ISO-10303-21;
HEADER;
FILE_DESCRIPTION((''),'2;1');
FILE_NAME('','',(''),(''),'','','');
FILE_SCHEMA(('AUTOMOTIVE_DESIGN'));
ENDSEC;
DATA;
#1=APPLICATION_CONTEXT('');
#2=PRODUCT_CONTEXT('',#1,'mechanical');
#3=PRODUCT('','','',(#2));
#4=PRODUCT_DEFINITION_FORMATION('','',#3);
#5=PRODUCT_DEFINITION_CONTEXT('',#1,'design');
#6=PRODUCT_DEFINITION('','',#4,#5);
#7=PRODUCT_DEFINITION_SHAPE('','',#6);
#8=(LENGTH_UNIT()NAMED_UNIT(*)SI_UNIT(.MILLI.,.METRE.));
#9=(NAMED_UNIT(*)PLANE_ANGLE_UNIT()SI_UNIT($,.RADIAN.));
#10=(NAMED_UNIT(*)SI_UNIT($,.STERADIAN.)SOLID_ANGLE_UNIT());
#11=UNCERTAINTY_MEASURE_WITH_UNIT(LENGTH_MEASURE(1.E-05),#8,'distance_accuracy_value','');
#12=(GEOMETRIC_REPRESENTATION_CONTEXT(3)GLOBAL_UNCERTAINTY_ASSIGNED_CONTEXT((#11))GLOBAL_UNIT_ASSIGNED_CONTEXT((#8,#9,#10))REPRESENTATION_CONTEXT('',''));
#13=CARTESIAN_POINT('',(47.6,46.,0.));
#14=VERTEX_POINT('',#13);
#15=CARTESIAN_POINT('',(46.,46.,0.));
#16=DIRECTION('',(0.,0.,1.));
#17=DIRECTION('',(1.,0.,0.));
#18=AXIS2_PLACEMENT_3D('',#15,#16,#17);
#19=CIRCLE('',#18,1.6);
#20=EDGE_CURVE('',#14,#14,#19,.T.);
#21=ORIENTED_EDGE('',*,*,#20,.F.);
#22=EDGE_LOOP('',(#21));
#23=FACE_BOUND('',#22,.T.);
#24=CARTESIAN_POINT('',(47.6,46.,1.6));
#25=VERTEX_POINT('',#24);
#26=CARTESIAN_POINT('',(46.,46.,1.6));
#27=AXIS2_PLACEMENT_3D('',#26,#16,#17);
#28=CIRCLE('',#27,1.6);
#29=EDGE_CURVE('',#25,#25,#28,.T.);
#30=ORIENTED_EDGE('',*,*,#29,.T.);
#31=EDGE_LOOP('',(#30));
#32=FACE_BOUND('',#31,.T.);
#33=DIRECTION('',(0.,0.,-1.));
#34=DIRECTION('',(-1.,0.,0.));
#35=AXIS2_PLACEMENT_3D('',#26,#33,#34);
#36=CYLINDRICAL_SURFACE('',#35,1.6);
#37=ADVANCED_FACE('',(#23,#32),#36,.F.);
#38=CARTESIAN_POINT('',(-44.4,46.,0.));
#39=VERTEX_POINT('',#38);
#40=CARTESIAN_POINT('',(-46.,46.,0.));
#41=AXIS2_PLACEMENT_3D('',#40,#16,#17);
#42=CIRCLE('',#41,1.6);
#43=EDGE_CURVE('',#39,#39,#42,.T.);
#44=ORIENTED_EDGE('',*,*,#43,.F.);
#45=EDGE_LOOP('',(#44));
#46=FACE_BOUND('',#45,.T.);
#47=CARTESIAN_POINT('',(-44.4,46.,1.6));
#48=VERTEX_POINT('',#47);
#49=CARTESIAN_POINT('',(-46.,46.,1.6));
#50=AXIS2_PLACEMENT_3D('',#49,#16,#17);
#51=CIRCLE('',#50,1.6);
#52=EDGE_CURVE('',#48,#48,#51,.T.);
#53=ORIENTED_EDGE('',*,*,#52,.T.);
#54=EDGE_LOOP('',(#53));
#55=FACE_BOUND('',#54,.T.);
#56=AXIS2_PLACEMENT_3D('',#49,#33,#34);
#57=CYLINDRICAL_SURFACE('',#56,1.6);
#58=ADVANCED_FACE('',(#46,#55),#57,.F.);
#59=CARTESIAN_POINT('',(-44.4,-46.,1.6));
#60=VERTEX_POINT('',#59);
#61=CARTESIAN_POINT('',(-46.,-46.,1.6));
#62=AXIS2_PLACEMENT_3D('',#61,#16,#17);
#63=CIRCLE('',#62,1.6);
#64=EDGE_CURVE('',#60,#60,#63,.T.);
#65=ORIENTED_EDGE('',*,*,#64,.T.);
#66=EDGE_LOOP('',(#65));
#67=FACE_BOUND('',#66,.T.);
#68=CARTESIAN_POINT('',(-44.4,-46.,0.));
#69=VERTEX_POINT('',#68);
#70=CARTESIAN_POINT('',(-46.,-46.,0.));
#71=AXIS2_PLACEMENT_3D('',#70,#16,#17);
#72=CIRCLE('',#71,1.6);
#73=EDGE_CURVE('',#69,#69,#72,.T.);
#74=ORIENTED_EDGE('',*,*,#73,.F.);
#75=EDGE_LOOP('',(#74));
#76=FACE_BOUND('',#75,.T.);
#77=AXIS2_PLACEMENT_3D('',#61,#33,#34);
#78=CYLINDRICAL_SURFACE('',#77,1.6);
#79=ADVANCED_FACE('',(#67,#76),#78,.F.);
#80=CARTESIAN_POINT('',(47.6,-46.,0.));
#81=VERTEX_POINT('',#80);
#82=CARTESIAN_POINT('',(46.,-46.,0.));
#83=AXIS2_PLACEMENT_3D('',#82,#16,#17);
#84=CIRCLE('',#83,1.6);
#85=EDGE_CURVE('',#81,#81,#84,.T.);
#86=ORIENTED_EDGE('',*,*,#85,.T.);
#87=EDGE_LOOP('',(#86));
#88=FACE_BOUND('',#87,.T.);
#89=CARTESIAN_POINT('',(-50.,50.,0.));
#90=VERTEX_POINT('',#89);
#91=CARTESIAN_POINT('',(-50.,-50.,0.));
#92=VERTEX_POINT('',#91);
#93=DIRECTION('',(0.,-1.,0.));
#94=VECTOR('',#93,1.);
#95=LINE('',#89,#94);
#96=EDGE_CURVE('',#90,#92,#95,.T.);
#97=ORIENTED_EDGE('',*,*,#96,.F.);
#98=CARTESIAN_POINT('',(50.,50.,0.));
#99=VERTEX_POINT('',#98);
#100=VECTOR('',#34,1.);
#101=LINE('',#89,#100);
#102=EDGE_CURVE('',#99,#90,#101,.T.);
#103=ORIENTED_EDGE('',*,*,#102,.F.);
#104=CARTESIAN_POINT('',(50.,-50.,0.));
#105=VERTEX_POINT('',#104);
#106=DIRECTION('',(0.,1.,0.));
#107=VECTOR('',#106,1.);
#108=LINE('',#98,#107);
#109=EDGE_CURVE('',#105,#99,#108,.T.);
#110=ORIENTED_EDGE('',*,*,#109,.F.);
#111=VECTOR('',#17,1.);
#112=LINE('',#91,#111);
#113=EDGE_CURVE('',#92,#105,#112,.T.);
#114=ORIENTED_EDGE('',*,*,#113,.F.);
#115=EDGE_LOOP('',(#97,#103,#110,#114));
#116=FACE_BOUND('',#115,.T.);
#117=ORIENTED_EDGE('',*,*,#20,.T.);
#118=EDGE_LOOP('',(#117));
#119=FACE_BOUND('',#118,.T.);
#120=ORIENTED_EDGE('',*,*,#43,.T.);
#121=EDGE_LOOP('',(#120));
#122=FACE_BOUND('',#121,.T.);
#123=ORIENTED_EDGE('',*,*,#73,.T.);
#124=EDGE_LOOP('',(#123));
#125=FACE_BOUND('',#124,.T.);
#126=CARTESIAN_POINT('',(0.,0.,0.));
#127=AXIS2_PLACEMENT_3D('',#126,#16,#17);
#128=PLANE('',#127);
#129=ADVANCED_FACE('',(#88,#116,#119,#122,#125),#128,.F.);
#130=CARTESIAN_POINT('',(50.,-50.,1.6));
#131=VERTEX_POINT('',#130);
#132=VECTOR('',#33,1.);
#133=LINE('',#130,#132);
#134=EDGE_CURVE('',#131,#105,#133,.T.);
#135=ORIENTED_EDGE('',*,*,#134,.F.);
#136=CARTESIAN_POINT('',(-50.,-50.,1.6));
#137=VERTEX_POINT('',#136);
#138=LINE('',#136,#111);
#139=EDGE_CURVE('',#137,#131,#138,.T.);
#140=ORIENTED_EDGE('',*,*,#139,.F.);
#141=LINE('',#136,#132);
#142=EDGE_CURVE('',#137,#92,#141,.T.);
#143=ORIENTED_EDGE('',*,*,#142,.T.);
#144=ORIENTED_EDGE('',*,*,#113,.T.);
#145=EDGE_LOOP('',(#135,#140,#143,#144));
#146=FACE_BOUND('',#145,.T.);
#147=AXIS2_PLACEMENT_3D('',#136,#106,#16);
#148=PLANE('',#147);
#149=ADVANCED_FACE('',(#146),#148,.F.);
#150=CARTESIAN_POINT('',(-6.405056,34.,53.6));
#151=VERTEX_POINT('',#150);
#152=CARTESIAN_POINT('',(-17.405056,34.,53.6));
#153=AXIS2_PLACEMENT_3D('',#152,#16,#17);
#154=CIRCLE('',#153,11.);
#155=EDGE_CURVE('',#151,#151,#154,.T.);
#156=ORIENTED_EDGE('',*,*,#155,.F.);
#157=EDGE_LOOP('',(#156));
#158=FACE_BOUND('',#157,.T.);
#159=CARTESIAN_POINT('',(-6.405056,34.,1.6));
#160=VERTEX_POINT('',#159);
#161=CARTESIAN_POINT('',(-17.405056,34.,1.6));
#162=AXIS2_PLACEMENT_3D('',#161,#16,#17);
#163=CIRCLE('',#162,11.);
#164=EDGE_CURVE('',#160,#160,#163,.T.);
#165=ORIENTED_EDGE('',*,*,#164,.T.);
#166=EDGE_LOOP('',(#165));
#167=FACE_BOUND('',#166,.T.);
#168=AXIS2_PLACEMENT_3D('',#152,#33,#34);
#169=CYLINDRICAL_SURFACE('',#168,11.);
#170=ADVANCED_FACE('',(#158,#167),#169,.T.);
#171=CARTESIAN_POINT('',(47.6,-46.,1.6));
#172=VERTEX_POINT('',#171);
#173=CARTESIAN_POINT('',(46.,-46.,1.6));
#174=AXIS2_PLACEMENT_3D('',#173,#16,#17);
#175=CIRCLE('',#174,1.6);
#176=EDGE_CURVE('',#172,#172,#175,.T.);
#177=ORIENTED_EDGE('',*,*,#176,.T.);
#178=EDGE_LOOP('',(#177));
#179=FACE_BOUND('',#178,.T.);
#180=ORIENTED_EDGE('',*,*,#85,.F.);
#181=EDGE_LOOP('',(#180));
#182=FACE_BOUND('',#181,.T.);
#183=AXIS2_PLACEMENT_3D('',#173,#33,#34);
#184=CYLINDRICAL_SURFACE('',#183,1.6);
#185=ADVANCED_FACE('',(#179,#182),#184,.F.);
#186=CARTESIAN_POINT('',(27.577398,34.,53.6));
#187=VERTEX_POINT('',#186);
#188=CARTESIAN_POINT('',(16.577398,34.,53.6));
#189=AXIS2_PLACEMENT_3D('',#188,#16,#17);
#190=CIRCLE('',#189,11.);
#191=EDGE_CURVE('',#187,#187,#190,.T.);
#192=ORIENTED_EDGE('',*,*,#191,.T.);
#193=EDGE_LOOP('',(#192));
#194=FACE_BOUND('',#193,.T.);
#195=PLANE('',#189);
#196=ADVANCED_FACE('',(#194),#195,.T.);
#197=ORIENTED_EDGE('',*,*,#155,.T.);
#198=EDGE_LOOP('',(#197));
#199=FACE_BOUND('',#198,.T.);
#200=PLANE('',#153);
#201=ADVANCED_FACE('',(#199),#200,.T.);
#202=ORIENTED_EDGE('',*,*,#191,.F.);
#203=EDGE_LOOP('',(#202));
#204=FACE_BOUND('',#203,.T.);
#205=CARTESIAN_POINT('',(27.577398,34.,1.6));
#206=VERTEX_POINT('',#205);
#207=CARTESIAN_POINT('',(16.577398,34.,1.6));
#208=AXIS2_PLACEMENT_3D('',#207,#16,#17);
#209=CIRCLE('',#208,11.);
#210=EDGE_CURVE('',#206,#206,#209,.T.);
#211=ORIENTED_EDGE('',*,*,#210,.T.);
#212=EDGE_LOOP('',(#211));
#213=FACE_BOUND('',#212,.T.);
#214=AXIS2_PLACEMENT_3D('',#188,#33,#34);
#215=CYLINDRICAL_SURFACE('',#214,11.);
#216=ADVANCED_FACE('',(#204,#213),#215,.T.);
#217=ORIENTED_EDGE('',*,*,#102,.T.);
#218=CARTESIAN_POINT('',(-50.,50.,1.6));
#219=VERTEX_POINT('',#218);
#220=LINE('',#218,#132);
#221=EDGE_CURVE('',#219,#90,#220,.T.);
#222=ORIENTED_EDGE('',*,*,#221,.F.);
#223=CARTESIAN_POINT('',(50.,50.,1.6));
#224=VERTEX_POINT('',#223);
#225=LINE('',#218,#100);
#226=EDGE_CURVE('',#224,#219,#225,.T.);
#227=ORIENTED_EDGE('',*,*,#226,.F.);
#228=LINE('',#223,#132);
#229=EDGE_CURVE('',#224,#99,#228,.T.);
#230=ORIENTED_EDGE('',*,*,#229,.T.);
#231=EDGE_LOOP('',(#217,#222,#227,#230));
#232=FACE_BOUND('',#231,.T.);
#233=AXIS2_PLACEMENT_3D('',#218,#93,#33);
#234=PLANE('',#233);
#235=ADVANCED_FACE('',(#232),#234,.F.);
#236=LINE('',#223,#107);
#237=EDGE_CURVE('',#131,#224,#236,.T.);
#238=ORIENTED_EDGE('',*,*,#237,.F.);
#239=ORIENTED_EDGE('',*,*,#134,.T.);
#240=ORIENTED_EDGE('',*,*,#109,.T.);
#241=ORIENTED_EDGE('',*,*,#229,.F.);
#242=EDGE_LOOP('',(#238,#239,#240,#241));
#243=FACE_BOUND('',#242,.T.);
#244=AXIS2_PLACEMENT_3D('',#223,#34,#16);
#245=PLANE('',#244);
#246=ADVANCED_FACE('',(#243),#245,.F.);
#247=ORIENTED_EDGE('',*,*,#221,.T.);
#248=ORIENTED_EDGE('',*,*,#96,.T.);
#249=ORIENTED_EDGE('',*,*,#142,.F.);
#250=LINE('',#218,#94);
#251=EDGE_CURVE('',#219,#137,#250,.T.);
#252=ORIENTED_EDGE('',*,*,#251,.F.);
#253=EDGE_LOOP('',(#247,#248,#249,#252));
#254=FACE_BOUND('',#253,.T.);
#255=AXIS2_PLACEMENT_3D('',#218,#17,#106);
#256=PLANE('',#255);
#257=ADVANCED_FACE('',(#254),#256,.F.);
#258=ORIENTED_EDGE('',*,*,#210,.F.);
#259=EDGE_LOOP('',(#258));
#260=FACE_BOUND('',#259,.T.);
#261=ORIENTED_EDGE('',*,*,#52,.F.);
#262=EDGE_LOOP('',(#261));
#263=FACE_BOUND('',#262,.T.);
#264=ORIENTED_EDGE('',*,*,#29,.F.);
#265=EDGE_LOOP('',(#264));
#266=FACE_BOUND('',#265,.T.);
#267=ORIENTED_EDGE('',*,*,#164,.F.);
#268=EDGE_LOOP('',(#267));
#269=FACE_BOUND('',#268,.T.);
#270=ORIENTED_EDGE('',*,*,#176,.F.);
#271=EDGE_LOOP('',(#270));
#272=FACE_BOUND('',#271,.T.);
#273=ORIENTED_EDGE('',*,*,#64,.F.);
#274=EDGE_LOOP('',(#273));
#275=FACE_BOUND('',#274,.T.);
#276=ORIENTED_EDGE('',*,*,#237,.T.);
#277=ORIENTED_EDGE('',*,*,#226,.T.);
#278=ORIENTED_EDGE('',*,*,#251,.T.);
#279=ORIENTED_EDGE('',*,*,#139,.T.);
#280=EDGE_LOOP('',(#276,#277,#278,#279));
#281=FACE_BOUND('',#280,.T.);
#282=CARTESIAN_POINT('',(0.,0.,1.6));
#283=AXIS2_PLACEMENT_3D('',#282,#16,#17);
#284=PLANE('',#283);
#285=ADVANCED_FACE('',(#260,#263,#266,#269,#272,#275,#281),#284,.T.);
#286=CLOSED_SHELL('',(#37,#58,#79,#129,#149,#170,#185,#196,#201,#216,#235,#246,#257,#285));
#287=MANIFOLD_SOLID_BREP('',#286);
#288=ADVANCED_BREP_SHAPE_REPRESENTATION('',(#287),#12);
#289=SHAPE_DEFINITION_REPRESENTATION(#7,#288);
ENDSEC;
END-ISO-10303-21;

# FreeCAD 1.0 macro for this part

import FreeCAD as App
import Part
import Sketcher
from FreeCAD import Vector
Q = App.Units.Quantity

doc = App.newDocument("Part")
body = doc.addObject("PartDesign::Body", "Body")

# Sketch on XY plane
sketch1 = doc.addObject("Sketcher::SketchObject", "Sketch")
body.addObject(sketch1)
sketch1.AttachmentSupport = (doc.XY_Plane, [""])
sketch1.MapMode = "FlatFace"
sketch1.addGeometry([
    Part.LineSegment(Vector(-50, 50, 0), Vector(-50, -50, 0)),  # 0
    Part.LineSegment(Vector(-50, -50, 0), Vector(50, -50, 0)),  # 1
    Part.LineSegment(Vector(50, -50, 0), Vector(50, 50, 0)),  # 2
    Part.LineSegment(Vector(50, 50, 0), Vector(-50, 50, 0)),  # 3
    Part.Circle(Vector(-46, -46, 0), Vector(0, 0, 1), 1.6),  # 4
    Part.Circle(Vector(46, -46, 0), Vector(0, 0, 1), 1.6),  # 5
    Part.Circle(Vector(-46, 46, 0), Vector(0, 0, 1), 1.6),  # 6
    Part.Circle(Vector(46, 46, 0), Vector(0, 0, 1), 1.6),  # 7
], False)
sketch1.addConstraint([
    Sketcher.Constraint("Coincident", 0, 2, 1, 1),
    Sketcher.Constraint("Coincident", 1, 2, 2, 1),
    Sketcher.Constraint("Coincident", 2, 2, 3, 1),
    Sketcher.Constraint("Coincident", 3, 2, 0, 1),
    Sketcher.Constraint("Vertical", 0),
    Sketcher.Constraint("Horizontal", 1),
    Sketcher.Constraint("Vertical", 2),
    Sketcher.Constraint("Horizontal", 3),
    Sketcher.Constraint("Equal", 4, 5),
    Sketcher.Constraint("Equal", 5, 6),
    Sketcher.Constraint("Equal", 6, 7),
    Sketcher.Constraint("Symmetric", 5, 3, 6, 3, -1, 1),
    Sketcher.Constraint("Symmetric", 4, 3, 7, 3, -1, 1),
    Sketcher.Constraint("Symmetric", 0, 2, 2, 2, -1, 1),
    Sketcher.Constraint("Symmetric", 4, 3, 5, 3, -2),
    Sketcher.Constraint("Equal", 3, 0),
    Sketcher.Constraint("Diameter", 4, Q("3.2 mm")),
    Sketcher.Constraint("DistanceX", 1, 1, 1, 2, Q("100 mm")),
    Sketcher.Constraint("DistanceX", 4, 3, -1, 1, Q("46 mm")),
    Sketcher.Constraint("DistanceY", 4, 3, -1, 1, Q("46 mm")),
])
pad1 = doc.addObject("PartDesign::Pad", "Pad")
body.addObject(pad1)
pad1.Profile = sketch1
pad1.Length = 1.6

# Sketch on XY plane
sketch2 = doc.addObject("Sketcher::SketchObject", "Sketch001")
body.addObject(sketch2)
sketch2.AttachmentSupport = (doc.XY_Plane, [""])
sketch2.MapMode = "FlatFace"
sketch2.AttachmentOffset = App.Placement(Vector(0, 0, 1.6), App.Rotation())
sketch2.addGeometry([
    Part.Circle(Vector(-17.405056, 34, 0), Vector(0, 0, 1), 11),
    Part.Circle(Vector(16.577398, 34, 0), Vector(0, 0, 1), 11),
], False)
sketch2.addConstraint([
    Sketcher.Constraint("Equal", 0, 1),
    Sketcher.Constraint("Horizontal", 0, 3, 1, 3),
    Sketcher.Constraint("Diameter", 0, Q("22 mm")),
    Sketcher.Constraint("DistanceY", -1, 1, 0, 3, Q("34 mm")),
    Sketcher.Constraint("DistanceX", -1, 1, 1, 3, Q("16.577398 mm")),
    Sketcher.Constraint("DistanceX", 0, 3, -1, 1, Q("17.405056 mm")),
])
pad2 = doc.addObject("PartDesign::Pad", "Pad001")
body.addObject(pad2)
pad2.Profile = sketch2
pad2.Length = 52

doc.recompute()
